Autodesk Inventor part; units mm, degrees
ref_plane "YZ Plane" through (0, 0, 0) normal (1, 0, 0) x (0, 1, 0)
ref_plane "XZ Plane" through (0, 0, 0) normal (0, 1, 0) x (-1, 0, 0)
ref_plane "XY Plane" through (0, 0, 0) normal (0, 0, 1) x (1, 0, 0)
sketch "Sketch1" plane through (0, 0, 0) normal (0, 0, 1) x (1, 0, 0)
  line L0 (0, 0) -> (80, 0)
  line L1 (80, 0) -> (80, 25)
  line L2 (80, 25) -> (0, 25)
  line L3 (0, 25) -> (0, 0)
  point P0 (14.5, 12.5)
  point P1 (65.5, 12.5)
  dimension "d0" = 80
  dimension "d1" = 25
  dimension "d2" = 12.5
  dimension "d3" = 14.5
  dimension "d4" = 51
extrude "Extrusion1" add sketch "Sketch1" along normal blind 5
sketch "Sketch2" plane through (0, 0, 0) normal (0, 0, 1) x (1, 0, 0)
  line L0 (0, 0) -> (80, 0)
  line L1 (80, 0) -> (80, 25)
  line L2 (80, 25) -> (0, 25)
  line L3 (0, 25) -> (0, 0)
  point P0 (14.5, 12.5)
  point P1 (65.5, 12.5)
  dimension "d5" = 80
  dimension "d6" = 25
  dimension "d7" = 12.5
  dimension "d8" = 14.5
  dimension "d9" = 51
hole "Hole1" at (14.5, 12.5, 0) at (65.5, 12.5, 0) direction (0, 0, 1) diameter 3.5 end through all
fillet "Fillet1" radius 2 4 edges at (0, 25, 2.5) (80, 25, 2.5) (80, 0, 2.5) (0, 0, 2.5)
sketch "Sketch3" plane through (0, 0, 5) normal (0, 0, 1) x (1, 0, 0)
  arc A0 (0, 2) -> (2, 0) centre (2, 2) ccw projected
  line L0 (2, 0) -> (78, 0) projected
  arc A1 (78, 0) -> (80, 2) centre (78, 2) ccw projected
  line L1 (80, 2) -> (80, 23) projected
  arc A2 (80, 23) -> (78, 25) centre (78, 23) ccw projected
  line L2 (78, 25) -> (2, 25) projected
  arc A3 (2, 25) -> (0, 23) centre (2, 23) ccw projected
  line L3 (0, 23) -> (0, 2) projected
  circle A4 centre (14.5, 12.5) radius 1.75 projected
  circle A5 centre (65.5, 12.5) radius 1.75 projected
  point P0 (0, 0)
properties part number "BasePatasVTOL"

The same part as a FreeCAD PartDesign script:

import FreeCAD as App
import Part
import Sketcher

V = App.Vector
Q = App.Units.Quantity


def edges_at(feature, points):
    """Names of the edges that pass closest to the given points."""
    edges = feature.Shape.Edges
    near = lambda p: min(range(len(edges)), key=lambda i: edges[i].distToShape(Part.Vertex(*p))[0])
    return sorted({f"Edge{near(p) + 1}" for p in points})

doc = App.newDocument("Part")
body = doc.addObject("PartDesign::Body", "Body")

sketch1 = body.newObject("Sketcher::SketchObject", "Sketch")
sketch1.AttachmentSupport = (doc.getObject("XY_Plane"), [""])
sketch1.MapMode = "FlatFace"
sketch1.addGeometry([
    Part.LineSegment(V(0, 25, 0), V(0, 0, 0)),
    Part.LineSegment(V(0, 0, 0), V(80, 0, 0)),
    Part.LineSegment(V(80, 0, 0), V(80, 25, 0)),
    Part.LineSegment(V(80, 25, 0), V(0, 25, 0)),
], False)
sketch1.addConstraint([
    Sketcher.Constraint("Coincident", 0, 2, 1, 1),
    Sketcher.Constraint("Coincident", 1, 2, 2, 1),
    Sketcher.Constraint("Coincident", 2, 2, 3, 1),
    Sketcher.Constraint("Coincident", 3, 2, 0, 1),
    Sketcher.Constraint("Vertical", 0),
    Sketcher.Constraint("Horizontal", 1),
    Sketcher.Constraint("Vertical", 2),
    Sketcher.Constraint("Horizontal", 3),
    Sketcher.Constraint("Coincident", 0, 2, -1, 1),
    Sketcher.Constraint("DistanceX", 1, 1, 1, 2, Q("80 mm")),
    Sketcher.Constraint("DistanceY", 0, 2, 0, 1, Q("25 mm")),
])
pad1 = body.newObject("PartDesign::Pad", "Pad")
pad1.Profile = sketch1
pad1.Length = 5

sketch2 = body.newObject("Sketcher::SketchObject", "Sketch001")
sketch2.AttachmentSupport = (doc.getObject("XY_Plane"), [""])
sketch2.MapMode = "FlatFace"
sketch2.addGeometry([
    Part.Circle(V(14.5, 12.5, 0), V(0, 0, 1), 1.8),
    Part.Circle(V(65.5, 12.5, 0), V(0, 0, 1), 1.8),
], False)
sketch2.addConstraint([
    Sketcher.Constraint("Equal", 0, 1),
    Sketcher.Constraint("Horizontal", 0, 3, 1, 3),
    Sketcher.Constraint("Diameter", 0, Q("3.5 mm")),
    Sketcher.Constraint("DistanceX", 0, 3, 1, 3, Q("51 mm")),
    Sketcher.Constraint("DistanceX", -1, 1, 0, 3, Q("14.5 mm")),
    Sketcher.Constraint("DistanceY", -1, 1, 0, 3, Q("12.5 mm")),
])
doc.recompute()
hole = body.newObject("PartDesign::Hole", "Hole")
hole.Profile = sketch2
hole.ThreadType = "None"
hole.Diameter = 3.5
hole.DepthType = "ThroughAll"
hole.Reversed = True
doc.recompute()

fillet = body.newObject("PartDesign::Fillet", "Fillet")
fillet.Base = (hole, edges_at(hole, [
    (0, 25, 2.5),
    (80, 25, 2.5),
    (80, 0, 2.5),
    (0, 0, 2.5),
]))
fillet.Radius = 2

doc.recompute()
